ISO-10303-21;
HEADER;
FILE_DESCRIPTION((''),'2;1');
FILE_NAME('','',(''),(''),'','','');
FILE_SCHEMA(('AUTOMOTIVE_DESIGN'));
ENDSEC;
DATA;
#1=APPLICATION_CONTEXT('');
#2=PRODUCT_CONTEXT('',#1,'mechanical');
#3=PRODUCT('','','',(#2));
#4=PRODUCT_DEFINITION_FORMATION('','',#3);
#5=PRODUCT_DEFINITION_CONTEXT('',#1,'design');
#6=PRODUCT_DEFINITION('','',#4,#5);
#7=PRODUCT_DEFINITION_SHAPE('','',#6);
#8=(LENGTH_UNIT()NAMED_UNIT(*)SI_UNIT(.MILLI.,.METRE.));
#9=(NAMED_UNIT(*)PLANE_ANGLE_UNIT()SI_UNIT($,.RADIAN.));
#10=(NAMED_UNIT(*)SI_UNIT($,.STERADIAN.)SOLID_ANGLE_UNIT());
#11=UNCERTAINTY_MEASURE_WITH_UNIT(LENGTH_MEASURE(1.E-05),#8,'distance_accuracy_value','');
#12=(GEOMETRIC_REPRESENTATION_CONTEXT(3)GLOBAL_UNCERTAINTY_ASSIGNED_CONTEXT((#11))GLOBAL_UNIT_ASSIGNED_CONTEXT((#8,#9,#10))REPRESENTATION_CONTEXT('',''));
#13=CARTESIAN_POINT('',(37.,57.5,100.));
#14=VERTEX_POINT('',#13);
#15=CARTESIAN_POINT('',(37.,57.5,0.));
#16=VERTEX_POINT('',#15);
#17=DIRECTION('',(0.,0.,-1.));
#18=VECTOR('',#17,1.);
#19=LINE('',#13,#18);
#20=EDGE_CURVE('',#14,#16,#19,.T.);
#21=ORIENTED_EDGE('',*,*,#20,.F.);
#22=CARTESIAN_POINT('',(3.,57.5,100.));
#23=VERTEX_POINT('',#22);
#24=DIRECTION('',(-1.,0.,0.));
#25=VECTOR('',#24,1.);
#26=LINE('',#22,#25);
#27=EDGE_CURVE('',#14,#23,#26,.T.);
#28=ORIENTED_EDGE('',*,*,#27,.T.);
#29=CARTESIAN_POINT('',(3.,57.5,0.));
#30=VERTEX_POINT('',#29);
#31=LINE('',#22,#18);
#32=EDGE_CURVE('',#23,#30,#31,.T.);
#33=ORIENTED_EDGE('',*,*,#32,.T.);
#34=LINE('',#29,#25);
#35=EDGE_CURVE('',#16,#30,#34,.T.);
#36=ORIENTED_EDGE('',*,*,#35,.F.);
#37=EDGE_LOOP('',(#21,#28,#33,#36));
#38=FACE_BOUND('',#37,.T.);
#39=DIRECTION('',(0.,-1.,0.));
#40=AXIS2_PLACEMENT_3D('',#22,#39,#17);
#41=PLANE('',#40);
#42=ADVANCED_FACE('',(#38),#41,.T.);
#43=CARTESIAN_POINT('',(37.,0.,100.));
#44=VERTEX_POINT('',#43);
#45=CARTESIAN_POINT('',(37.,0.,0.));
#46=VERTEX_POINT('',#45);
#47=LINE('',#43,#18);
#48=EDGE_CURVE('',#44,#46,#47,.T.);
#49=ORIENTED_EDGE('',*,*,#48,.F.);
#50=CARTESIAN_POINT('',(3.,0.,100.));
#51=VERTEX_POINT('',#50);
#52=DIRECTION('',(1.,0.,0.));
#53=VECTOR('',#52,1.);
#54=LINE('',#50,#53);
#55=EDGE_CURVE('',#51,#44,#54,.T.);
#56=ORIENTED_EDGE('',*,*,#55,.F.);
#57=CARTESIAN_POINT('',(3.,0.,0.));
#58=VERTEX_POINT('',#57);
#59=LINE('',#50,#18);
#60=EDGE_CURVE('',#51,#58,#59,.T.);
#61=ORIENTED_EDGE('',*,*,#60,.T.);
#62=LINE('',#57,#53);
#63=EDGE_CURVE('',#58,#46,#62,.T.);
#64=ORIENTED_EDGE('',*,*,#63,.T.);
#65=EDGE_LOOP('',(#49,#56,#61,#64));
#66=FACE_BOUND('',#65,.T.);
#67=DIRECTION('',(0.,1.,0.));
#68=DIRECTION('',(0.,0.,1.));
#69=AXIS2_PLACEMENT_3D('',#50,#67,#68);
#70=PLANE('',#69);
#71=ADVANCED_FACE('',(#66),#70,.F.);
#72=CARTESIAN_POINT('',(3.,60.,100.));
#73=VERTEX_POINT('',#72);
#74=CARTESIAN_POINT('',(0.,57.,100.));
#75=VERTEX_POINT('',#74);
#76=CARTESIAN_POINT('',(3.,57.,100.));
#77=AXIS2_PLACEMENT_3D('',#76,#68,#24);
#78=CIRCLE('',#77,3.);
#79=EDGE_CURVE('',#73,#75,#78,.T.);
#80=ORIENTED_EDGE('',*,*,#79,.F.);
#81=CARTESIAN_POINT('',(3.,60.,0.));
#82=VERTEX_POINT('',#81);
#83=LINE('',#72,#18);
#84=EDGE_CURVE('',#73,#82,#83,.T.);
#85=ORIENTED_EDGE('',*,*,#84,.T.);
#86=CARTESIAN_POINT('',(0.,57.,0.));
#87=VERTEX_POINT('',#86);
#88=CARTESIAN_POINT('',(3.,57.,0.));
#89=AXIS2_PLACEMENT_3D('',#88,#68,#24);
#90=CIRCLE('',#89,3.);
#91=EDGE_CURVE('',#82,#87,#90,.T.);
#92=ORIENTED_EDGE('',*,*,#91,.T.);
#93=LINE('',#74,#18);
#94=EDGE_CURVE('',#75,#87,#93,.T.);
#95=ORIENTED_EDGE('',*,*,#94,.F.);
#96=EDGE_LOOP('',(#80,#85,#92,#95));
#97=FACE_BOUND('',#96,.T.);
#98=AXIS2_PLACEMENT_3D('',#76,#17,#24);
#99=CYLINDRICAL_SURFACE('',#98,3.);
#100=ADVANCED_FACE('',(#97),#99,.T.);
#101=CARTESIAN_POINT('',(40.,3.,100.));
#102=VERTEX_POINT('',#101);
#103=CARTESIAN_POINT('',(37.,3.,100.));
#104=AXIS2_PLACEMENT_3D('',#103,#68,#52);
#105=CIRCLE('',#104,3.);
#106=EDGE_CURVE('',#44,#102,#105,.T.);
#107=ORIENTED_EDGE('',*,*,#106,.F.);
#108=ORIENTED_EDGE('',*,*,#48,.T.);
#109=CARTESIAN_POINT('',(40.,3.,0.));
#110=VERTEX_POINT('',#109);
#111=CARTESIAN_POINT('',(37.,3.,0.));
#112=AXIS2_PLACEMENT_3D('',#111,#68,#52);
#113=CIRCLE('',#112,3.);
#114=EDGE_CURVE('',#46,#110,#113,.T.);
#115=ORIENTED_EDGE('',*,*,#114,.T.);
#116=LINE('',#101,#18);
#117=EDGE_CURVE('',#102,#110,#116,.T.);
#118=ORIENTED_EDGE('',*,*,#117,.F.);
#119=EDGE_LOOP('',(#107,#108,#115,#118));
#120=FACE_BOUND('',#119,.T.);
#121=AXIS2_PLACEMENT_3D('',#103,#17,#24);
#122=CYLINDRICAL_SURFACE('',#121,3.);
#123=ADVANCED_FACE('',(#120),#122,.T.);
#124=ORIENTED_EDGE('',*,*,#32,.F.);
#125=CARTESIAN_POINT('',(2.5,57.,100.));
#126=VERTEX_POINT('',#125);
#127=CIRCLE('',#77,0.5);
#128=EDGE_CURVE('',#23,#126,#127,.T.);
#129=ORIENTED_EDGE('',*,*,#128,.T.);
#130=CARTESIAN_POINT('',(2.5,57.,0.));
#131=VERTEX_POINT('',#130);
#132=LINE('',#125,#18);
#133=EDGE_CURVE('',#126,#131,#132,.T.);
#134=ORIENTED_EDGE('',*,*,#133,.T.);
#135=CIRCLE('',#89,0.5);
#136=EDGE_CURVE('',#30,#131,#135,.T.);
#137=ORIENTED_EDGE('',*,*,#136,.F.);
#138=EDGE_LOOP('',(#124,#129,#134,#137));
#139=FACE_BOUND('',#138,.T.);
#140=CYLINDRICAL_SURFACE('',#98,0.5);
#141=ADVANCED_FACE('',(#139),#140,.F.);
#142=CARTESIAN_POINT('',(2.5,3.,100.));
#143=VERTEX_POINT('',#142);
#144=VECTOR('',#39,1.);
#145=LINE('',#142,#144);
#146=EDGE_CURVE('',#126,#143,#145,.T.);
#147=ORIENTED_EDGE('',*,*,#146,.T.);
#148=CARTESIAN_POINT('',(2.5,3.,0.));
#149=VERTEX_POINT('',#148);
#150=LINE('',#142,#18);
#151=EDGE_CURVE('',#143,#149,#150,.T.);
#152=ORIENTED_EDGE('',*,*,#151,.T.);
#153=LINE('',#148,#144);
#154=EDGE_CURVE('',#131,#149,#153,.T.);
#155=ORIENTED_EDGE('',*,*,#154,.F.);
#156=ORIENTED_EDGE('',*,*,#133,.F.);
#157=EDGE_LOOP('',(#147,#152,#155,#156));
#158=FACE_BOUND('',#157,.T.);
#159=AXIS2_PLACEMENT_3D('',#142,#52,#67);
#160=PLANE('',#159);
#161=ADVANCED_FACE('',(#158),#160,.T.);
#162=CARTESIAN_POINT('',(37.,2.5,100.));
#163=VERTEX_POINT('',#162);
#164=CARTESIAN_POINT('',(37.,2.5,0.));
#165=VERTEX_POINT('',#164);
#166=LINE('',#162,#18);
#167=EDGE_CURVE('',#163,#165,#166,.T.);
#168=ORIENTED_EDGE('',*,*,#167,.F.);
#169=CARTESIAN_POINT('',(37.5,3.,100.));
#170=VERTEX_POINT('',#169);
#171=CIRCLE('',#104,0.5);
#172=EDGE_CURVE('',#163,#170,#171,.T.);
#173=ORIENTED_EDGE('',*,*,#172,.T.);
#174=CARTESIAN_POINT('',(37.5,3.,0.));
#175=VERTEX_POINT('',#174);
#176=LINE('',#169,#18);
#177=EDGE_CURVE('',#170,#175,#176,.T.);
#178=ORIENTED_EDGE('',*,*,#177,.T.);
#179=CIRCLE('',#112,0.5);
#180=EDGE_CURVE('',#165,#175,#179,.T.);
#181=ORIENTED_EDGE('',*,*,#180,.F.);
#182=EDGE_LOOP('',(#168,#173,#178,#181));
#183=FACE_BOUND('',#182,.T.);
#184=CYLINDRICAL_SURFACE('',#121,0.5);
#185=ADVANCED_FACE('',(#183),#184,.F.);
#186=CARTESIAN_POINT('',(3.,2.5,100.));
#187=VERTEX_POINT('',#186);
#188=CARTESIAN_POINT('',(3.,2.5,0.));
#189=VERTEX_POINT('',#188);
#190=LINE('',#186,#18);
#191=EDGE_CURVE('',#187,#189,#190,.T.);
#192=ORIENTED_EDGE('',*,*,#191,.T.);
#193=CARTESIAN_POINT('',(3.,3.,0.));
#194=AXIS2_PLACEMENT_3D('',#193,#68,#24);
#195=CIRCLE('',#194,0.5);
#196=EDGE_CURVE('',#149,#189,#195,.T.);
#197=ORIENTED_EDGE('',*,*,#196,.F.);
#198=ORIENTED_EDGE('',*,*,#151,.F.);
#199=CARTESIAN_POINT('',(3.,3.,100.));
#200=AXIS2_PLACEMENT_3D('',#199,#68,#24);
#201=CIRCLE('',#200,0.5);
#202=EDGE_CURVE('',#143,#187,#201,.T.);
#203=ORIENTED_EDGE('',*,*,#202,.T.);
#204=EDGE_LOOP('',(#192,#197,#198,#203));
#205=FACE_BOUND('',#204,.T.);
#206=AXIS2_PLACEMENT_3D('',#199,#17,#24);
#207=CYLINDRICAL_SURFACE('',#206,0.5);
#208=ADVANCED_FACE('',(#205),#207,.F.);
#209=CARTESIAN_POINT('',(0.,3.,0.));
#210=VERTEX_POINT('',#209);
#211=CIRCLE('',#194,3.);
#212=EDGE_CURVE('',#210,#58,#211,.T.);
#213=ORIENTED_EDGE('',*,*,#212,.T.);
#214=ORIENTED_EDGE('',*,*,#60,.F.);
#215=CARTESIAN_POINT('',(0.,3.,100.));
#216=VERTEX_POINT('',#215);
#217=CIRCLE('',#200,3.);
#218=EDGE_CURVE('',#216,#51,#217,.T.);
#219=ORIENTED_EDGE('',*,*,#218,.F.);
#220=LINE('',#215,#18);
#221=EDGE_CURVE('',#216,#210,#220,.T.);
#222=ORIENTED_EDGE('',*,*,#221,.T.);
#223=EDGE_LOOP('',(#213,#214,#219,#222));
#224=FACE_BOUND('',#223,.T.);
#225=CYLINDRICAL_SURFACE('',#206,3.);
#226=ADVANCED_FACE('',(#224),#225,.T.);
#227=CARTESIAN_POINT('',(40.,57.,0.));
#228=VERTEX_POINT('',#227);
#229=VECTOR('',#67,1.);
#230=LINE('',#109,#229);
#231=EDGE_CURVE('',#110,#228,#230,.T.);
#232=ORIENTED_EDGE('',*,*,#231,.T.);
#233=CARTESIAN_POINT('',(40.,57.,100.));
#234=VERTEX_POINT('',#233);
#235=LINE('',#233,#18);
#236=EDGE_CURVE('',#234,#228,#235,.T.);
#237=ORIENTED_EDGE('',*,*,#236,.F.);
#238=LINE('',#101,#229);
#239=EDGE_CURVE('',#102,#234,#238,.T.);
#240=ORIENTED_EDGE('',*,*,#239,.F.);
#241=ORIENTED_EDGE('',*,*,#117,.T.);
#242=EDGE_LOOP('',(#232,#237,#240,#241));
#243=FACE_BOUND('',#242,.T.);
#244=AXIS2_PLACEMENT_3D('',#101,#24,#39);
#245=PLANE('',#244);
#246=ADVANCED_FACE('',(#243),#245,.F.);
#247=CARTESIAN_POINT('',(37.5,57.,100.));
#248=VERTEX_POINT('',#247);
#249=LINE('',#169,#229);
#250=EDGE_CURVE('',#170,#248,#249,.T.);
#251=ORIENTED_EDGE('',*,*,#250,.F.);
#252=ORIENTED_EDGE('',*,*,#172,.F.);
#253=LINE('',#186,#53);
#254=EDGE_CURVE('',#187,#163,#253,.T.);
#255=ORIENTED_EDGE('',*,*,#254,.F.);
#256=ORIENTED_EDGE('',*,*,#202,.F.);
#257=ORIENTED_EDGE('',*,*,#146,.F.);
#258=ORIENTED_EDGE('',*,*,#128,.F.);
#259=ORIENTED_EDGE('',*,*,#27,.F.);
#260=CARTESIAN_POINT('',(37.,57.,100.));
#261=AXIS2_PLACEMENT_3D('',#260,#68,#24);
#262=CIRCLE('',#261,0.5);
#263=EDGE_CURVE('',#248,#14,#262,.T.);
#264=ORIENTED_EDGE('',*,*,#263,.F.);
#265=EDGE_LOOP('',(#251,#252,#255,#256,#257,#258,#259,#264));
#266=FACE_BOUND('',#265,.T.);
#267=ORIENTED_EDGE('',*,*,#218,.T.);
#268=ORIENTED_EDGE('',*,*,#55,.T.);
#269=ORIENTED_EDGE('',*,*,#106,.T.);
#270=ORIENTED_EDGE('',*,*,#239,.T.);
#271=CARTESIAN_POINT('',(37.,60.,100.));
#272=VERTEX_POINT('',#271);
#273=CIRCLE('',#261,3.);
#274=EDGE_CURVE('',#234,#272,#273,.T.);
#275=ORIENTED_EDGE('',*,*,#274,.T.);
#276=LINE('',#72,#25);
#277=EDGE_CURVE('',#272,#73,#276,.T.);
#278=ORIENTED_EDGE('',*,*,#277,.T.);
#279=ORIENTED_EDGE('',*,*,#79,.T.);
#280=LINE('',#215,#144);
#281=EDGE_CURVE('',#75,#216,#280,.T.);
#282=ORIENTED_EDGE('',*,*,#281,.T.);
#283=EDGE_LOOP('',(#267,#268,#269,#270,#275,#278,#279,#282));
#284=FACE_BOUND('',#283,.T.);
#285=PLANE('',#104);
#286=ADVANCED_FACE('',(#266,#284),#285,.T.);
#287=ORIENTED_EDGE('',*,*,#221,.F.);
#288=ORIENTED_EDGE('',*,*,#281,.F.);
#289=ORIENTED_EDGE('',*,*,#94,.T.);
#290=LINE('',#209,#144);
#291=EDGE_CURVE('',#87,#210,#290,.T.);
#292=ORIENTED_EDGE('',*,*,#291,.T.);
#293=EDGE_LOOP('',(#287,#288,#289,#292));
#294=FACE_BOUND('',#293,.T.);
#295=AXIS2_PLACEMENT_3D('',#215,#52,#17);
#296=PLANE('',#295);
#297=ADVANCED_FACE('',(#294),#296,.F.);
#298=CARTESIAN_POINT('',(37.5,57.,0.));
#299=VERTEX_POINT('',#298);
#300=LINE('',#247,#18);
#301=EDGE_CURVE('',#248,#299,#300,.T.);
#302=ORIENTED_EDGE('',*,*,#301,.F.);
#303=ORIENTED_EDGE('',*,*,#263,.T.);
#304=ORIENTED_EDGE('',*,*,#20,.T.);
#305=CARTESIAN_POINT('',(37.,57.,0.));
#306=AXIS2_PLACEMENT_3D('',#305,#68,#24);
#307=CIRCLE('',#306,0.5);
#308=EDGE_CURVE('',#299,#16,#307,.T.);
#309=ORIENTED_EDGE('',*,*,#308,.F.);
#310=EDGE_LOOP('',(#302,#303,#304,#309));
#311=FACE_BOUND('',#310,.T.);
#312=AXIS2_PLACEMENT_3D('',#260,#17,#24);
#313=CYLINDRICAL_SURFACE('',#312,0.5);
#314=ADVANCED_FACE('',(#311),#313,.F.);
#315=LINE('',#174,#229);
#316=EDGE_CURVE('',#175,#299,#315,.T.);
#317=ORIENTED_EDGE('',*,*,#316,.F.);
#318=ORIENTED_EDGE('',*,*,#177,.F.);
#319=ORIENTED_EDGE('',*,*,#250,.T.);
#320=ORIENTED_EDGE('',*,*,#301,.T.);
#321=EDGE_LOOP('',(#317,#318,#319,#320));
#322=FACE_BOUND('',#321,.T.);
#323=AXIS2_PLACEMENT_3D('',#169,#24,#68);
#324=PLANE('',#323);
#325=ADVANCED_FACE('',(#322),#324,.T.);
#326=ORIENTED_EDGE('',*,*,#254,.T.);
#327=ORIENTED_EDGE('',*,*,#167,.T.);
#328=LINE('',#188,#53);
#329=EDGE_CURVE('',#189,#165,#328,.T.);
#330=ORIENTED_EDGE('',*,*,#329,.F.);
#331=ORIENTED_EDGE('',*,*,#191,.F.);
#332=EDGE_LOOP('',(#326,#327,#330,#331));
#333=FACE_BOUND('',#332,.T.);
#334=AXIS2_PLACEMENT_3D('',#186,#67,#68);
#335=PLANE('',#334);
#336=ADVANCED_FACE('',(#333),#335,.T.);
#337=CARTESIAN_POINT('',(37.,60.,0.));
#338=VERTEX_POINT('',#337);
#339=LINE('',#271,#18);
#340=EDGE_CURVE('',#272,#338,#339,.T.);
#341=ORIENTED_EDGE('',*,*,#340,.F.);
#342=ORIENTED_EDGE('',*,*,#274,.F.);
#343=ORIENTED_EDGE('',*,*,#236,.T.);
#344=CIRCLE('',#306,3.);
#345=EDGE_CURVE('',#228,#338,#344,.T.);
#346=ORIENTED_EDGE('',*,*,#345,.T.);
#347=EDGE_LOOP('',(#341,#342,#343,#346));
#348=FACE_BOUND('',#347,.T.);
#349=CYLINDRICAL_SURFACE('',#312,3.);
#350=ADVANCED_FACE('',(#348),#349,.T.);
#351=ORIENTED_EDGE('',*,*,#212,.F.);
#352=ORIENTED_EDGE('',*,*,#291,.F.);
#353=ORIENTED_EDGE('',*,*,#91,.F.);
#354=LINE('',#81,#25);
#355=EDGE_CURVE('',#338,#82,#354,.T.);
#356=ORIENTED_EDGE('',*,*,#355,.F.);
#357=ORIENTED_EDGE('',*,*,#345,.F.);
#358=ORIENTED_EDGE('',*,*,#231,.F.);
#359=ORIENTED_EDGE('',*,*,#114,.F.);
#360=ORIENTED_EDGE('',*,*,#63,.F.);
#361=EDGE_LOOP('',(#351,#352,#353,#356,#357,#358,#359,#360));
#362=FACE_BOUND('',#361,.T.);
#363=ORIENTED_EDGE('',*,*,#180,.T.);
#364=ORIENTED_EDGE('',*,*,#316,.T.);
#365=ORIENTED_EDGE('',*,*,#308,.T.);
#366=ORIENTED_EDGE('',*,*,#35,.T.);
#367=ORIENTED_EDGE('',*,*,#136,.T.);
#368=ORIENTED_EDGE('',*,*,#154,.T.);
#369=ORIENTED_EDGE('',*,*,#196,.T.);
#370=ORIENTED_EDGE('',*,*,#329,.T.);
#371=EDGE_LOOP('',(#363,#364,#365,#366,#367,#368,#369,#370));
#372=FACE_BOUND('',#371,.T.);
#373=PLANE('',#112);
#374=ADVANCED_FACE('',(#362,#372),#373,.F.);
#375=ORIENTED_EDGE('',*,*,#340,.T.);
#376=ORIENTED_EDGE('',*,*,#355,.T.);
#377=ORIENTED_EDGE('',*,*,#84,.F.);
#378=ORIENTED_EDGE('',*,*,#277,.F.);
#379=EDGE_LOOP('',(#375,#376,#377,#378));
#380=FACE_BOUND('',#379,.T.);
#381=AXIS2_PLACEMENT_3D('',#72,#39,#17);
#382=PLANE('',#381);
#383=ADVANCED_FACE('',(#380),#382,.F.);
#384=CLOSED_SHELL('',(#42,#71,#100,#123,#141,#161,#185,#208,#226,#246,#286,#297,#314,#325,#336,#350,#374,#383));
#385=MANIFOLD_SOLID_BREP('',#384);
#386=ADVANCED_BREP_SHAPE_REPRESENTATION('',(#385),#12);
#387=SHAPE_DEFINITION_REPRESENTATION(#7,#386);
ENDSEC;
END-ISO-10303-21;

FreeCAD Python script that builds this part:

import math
import FreeCAD as App
import Part
import Sketcher
Q = App.Units.Quantity

doc = App.newDocument("Part")
body = doc.addObject("PartDesign::Body", "Body")

# Sketch on XY plane
sketch1 = doc.addObject("Sketcher::SketchObject", "Sketch")
body.addObject(sketch1)
sketch1.AttachmentSupport = (doc.XY_Plane, [""])
sketch1.MapMode = "FlatFace"
sketch1.addGeometry([
    Part.LineSegment(App.Vector(3, 0, 0), App.Vector(37, 0, 0)),  # 0
    Part.ArcOfCircle(Part.Circle(App.Vector(37, 3, 0), App.Vector(0, 0, 1), 3), math.radians(-90), math.radians(0)),  # 1
    Part.LineSegment(App.Vector(40, 3, 0), App.Vector(40, 57, 0)),  # 2
    Part.ArcOfCircle(Part.Circle(App.Vector(37, 57, 0), App.Vector(0, 0, 1), 3), math.radians(0), math.radians(90)),  # 3
    Part.LineSegment(App.Vector(37, 60, 0), App.Vector(3, 60, 0)),  # 4
    Part.ArcOfCircle(Part.Circle(App.Vector(3, 57, 0), App.Vector(0, 0, 1), 3), math.radians(90), math.radians(180)),  # 5
    Part.LineSegment(App.Vector(0, 57, 0), App.Vector(0, 3, 0)),  # 6
    Part.ArcOfCircle(Part.Circle(App.Vector(3, 3, 0), App.Vector(0, 0, 1), 3), math.radians(180), math.radians(270)),  # 7
    Part.LineSegment(App.Vector(37, 2.5, 0), App.Vector(3, 2.5, 0)),  # 8
    Part.ArcOfCircle(Part.Circle(App.Vector(3, 3, 0), App.Vector(0, 0, 1), 0.5), math.radians(180), math.radians(270)),  # 9
    Part.LineSegment(App.Vector(2.5, 3, 0), App.Vector(2.5, 57, 0)),  # 10
    Part.ArcOfCircle(Part.Circle(App.Vector(3, 57, 0), App.Vector(0, 0, 1), 0.5), math.radians(90), math.radians(180)),  # 11
    Part.LineSegment(App.Vector(3, 57.5, 0), App.Vector(37, 57.5, 0)),  # 12
    Part.ArcOfCircle(Part.Circle(App.Vector(37, 57, 0), App.Vector(0, 0, 1), 0.5), math.radians(0), math.radians(90)),  # 13
    Part.LineSegment(App.Vector(37.5, 57, 0), App.Vector(37.5, 3, 0)),  # 14
    Part.ArcOfCircle(Part.Circle(App.Vector(37, 3, 0), App.Vector(0, 0, 1), 0.5), math.radians(-90), math.radians(0)),  # 15
], False)
sketch1.addConstraint([
    Sketcher.Constraint("Tangent", 0, 2, 1, 1),
    Sketcher.Constraint("Tangent", 1, 2, 2, 1),
    Sketcher.Constraint("Tangent", 2, 2, 3, 1),
    Sketcher.Constraint("Tangent", 3, 2, 4, 1),
    Sketcher.Constraint("Tangent", 4, 2, 5, 1),
    Sketcher.Constraint("Tangent", 5, 2, 6, 1),
    Sketcher.Constraint("Tangent", 6, 2, 7, 1),
    Sketcher.Constraint("Tangent", 7, 2, 0, 1),
    Sketcher.Constraint("Tangent", 8, 2, 9, 2),
    Sketcher.Constraint("Tangent", 9, 1, 10, 1),
    Sketcher.Constraint("Tangent", 10, 2, 11, 2),
    Sketcher.Constraint("Tangent", 11, 1, 12, 1),
    Sketcher.Constraint("Tangent", 12, 2, 13, 2),
    Sketcher.Constraint("Tangent", 13, 1, 14, 1),
    Sketcher.Constraint("Tangent", 14, 2, 15, 2),
    Sketcher.Constraint("Tangent", 15, 1, 8, 1),
    Sketcher.Constraint("Horizontal", 0),
    Sketcher.Constraint("Vertical", 2),
    Sketcher.Constraint("Horizontal", 4),
    Sketcher.Constraint("Vertical", 6),
    Sketcher.Constraint("Horizontal", 8),
    Sketcher.Constraint("Vertical", 10),
    Sketcher.Constraint("Horizontal", 12),
    Sketcher.Constraint("Vertical", 14),
    Sketcher.Constraint("Coincident", 9, 3, 7, 3),
    Sketcher.Constraint("Coincident", 11, 3, 5, 3),
    Sketcher.Constraint("Coincident", 13, 3, 3, 3),
    Sketcher.Constraint("Equal", 1, 3),
    Sketcher.Constraint("Equal", 3, 5),
    Sketcher.Constraint("Equal", 5, 7),
    Sketcher.Constraint("Equal", 13, 15),
    Sketcher.Constraint("PointOnObject", 0, 2, -1),
    Sketcher.Constraint("PointOnObject", 5, 2, -2),
    Sketcher.Constraint("Radius", 1, Q("3 mm")),
    Sketcher.Constraint("Radius", 9, Q("0.5 mm")),
    Sketcher.Constraint("DistanceX", 0, 1, 0, 2, Q("34 mm")),
    Sketcher.Constraint("DistanceY", 2, 1, 2, 2, Q("54 mm")),
])
pad1 = doc.addObject("PartDesign::Pad", "Pad")
body.addObject(pad1)
pad1.Profile = sketch1
pad1.Length = 100

doc.recompute()
